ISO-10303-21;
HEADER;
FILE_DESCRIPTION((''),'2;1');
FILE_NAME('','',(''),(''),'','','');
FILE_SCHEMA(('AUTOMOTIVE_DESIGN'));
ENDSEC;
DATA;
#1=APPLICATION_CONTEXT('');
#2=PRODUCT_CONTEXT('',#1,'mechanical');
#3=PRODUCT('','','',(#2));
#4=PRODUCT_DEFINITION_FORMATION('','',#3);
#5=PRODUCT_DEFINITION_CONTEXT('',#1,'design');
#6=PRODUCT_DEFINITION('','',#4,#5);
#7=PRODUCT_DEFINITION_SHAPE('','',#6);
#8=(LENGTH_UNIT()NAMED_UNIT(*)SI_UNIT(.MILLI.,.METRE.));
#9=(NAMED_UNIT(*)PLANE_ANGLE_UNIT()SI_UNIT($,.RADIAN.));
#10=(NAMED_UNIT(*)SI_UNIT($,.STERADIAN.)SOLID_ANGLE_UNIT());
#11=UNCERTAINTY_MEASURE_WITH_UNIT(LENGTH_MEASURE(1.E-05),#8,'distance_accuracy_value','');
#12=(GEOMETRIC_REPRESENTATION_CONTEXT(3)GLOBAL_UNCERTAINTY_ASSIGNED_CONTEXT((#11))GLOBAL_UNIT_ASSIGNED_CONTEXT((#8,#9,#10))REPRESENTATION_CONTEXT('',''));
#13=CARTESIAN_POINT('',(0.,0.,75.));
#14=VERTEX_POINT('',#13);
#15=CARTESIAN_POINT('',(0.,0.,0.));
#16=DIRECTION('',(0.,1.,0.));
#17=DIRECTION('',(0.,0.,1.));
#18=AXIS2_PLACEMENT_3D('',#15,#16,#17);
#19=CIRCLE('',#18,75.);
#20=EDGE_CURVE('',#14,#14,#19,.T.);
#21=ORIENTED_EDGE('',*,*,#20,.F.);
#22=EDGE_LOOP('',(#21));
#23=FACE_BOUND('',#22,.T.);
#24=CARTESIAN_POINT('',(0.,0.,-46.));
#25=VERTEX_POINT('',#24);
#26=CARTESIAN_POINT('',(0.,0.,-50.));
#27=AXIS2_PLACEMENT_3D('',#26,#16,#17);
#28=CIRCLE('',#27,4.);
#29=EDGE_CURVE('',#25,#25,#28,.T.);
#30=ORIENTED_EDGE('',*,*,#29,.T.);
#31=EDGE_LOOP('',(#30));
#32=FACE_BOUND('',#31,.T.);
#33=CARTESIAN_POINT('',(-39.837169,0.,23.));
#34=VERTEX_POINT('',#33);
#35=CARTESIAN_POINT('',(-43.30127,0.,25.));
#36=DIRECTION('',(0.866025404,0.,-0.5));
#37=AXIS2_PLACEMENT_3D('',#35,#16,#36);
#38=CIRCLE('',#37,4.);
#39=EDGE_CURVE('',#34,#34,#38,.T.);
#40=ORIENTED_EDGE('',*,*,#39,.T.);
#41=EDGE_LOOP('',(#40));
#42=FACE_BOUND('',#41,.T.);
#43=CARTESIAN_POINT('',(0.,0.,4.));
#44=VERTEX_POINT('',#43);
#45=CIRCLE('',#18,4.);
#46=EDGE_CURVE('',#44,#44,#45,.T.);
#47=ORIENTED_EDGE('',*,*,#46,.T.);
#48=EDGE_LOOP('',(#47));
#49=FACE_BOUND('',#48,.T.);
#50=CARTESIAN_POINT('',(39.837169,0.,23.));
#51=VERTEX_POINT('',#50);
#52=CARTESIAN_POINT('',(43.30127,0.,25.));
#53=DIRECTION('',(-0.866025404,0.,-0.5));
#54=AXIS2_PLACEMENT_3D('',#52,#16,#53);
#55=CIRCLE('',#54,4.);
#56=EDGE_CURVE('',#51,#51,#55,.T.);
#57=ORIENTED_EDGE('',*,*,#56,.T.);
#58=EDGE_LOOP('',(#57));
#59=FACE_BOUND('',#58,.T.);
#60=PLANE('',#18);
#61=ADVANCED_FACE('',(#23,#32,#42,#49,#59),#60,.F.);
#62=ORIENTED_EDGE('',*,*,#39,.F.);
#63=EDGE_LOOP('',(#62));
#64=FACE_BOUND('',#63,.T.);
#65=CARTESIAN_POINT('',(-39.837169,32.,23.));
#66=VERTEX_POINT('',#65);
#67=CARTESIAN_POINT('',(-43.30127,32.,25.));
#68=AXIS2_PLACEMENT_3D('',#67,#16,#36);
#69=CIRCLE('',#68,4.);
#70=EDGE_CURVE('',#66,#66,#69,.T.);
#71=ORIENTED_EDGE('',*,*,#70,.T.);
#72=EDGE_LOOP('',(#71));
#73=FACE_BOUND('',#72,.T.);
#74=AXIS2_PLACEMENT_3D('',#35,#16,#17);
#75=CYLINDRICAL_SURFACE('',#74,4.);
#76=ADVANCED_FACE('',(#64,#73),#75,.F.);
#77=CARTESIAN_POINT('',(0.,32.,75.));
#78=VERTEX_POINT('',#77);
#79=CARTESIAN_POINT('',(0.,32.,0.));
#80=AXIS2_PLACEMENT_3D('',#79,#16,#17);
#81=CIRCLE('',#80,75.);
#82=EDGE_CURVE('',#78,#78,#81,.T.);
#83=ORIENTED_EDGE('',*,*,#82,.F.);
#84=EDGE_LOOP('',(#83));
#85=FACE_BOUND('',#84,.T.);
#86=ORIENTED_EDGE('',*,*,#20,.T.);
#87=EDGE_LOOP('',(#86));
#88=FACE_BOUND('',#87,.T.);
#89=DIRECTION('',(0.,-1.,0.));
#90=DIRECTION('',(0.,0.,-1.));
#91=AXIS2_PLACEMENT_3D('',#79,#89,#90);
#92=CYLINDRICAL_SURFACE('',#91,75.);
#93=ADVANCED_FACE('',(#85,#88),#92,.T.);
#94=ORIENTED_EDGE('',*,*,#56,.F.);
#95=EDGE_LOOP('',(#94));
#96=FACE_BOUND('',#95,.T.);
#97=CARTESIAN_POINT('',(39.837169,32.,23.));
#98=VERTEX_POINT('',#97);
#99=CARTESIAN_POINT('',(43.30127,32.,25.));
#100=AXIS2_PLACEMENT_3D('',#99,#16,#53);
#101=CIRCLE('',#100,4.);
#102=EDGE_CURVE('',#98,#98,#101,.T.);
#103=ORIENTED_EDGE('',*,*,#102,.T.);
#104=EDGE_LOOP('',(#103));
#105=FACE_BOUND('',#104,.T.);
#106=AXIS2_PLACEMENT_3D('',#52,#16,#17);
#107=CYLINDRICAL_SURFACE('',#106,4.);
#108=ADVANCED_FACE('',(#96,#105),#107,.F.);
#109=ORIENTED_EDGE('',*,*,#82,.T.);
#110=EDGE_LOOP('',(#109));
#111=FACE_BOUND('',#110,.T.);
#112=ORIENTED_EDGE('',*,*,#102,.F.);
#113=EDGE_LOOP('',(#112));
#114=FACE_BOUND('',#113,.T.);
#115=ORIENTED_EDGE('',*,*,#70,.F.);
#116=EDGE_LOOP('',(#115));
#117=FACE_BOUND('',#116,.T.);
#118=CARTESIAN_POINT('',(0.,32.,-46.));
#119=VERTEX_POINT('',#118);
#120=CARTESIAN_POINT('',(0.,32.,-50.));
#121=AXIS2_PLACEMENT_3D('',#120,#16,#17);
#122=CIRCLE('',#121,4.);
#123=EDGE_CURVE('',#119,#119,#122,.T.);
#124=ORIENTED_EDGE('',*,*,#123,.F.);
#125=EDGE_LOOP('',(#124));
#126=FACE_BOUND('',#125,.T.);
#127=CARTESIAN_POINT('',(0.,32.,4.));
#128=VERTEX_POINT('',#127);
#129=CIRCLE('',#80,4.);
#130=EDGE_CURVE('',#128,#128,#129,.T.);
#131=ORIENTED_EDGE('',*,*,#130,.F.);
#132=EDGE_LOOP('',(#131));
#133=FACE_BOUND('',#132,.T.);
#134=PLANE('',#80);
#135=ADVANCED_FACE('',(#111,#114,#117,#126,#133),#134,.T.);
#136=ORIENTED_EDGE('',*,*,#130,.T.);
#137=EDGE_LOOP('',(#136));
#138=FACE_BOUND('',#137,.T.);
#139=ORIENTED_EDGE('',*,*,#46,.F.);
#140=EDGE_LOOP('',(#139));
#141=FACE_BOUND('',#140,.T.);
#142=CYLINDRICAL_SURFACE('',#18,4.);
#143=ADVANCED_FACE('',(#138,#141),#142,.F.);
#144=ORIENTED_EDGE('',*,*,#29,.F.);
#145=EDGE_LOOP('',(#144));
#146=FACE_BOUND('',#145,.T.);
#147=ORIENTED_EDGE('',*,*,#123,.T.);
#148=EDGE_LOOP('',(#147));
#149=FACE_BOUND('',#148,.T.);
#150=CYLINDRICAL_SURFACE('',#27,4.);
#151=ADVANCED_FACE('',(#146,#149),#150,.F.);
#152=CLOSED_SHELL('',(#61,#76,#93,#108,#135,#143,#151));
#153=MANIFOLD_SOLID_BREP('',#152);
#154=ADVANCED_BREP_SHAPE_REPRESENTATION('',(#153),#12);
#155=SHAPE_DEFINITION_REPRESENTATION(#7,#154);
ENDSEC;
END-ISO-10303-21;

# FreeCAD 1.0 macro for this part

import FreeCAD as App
import Part
import Sketcher
from FreeCAD import Vector

doc = App.newDocument("Part")
body = doc.addObject("PartDesign::Body", "Body")

sketch1 = body.newObject("Sketcher::SketchObject", "Sketch")
sketch1.AttachmentSupport = (doc.getObject("XZ_Plane"), [""])
sketch1.MapMode = "FlatFace"
sketch1.addGeometry(Part.Circle(Vector(0, 0, 0), Vector(0, 0, 1), 75), False)
sketch1.addConstraint([
    Sketcher.Constraint("Coincident", 0, 3, -1, 1),
    Sketcher.Constraint("Diameter", 0, 150.0),
])
pad1 = body.newObject("PartDesign::Pad", "Pad")
pad1.Profile = sketch1
pad1.Length = 32
pad1.Reversed = True

sketch2 = body.newObject("Sketcher::SketchObject", "Sketch001")
sketch2.AttachmentSupport = (doc.getObject("XZ_Plane"), [""])
sketch2.MapMode = "FlatFace"
sketch2.AttachmentOffset = App.Placement(Vector(0, 0, -32), App.Rotation())
sketch2.addGeometry(Part.Circle(Vector(0, -50, 0), Vector(0, 0, 1), 4), False)
sketch2.addConstraint([
    Sketcher.Constraint("PointOnObject", 0, 3, -2),
    Sketcher.Constraint("Diameter", 0, 8.0),
    Sketcher.Constraint("DistanceY", 0, 3, -1, 1, 50.0),
])
pocket1 = body.newObject("PartDesign::Pocket", "Pocket")
pocket1.Profile = sketch2
pocket1.Type = "ThroughAll"
pocket1.Reversed = True
doc.recompute()

polarpattern = body.newObject("PartDesign::PolarPattern", "PolarPattern")
polarpattern.Originals = [pocket1]
polarpattern.Axis = (doc.getObject("Y_Axis"), [""])
polarpattern.Angle = 360
polarpattern.Occurrences = 3
body.Tip = polarpattern

sketch3 = body.newObject("Sketcher::SketchObject", "Sketch002")
sketch3.AttachmentSupport = (doc.getObject("XZ_Plane"), [""])
sketch3.MapMode = "FlatFace"
sketch3.AttachmentOffset = App.Placement(Vector(0, 0, -32), App.Rotation())
sketch3.addGeometry(Part.Circle(Vector(0, 0, 0), Vector(0, 0, 1), 4), False)
sketch3.addConstraint([
    Sketcher.Constraint("Coincident", 0, 3, -1, 1),
    Sketcher.Constraint("Diameter", 0, 8.0),
])
pocket2 = body.newObject("PartDesign::Pocket", "Pocket001")
pocket2.Profile = sketch3
pocket2.Type = "ThroughAll"
pocket2.Reversed = True

doc.recompute()
